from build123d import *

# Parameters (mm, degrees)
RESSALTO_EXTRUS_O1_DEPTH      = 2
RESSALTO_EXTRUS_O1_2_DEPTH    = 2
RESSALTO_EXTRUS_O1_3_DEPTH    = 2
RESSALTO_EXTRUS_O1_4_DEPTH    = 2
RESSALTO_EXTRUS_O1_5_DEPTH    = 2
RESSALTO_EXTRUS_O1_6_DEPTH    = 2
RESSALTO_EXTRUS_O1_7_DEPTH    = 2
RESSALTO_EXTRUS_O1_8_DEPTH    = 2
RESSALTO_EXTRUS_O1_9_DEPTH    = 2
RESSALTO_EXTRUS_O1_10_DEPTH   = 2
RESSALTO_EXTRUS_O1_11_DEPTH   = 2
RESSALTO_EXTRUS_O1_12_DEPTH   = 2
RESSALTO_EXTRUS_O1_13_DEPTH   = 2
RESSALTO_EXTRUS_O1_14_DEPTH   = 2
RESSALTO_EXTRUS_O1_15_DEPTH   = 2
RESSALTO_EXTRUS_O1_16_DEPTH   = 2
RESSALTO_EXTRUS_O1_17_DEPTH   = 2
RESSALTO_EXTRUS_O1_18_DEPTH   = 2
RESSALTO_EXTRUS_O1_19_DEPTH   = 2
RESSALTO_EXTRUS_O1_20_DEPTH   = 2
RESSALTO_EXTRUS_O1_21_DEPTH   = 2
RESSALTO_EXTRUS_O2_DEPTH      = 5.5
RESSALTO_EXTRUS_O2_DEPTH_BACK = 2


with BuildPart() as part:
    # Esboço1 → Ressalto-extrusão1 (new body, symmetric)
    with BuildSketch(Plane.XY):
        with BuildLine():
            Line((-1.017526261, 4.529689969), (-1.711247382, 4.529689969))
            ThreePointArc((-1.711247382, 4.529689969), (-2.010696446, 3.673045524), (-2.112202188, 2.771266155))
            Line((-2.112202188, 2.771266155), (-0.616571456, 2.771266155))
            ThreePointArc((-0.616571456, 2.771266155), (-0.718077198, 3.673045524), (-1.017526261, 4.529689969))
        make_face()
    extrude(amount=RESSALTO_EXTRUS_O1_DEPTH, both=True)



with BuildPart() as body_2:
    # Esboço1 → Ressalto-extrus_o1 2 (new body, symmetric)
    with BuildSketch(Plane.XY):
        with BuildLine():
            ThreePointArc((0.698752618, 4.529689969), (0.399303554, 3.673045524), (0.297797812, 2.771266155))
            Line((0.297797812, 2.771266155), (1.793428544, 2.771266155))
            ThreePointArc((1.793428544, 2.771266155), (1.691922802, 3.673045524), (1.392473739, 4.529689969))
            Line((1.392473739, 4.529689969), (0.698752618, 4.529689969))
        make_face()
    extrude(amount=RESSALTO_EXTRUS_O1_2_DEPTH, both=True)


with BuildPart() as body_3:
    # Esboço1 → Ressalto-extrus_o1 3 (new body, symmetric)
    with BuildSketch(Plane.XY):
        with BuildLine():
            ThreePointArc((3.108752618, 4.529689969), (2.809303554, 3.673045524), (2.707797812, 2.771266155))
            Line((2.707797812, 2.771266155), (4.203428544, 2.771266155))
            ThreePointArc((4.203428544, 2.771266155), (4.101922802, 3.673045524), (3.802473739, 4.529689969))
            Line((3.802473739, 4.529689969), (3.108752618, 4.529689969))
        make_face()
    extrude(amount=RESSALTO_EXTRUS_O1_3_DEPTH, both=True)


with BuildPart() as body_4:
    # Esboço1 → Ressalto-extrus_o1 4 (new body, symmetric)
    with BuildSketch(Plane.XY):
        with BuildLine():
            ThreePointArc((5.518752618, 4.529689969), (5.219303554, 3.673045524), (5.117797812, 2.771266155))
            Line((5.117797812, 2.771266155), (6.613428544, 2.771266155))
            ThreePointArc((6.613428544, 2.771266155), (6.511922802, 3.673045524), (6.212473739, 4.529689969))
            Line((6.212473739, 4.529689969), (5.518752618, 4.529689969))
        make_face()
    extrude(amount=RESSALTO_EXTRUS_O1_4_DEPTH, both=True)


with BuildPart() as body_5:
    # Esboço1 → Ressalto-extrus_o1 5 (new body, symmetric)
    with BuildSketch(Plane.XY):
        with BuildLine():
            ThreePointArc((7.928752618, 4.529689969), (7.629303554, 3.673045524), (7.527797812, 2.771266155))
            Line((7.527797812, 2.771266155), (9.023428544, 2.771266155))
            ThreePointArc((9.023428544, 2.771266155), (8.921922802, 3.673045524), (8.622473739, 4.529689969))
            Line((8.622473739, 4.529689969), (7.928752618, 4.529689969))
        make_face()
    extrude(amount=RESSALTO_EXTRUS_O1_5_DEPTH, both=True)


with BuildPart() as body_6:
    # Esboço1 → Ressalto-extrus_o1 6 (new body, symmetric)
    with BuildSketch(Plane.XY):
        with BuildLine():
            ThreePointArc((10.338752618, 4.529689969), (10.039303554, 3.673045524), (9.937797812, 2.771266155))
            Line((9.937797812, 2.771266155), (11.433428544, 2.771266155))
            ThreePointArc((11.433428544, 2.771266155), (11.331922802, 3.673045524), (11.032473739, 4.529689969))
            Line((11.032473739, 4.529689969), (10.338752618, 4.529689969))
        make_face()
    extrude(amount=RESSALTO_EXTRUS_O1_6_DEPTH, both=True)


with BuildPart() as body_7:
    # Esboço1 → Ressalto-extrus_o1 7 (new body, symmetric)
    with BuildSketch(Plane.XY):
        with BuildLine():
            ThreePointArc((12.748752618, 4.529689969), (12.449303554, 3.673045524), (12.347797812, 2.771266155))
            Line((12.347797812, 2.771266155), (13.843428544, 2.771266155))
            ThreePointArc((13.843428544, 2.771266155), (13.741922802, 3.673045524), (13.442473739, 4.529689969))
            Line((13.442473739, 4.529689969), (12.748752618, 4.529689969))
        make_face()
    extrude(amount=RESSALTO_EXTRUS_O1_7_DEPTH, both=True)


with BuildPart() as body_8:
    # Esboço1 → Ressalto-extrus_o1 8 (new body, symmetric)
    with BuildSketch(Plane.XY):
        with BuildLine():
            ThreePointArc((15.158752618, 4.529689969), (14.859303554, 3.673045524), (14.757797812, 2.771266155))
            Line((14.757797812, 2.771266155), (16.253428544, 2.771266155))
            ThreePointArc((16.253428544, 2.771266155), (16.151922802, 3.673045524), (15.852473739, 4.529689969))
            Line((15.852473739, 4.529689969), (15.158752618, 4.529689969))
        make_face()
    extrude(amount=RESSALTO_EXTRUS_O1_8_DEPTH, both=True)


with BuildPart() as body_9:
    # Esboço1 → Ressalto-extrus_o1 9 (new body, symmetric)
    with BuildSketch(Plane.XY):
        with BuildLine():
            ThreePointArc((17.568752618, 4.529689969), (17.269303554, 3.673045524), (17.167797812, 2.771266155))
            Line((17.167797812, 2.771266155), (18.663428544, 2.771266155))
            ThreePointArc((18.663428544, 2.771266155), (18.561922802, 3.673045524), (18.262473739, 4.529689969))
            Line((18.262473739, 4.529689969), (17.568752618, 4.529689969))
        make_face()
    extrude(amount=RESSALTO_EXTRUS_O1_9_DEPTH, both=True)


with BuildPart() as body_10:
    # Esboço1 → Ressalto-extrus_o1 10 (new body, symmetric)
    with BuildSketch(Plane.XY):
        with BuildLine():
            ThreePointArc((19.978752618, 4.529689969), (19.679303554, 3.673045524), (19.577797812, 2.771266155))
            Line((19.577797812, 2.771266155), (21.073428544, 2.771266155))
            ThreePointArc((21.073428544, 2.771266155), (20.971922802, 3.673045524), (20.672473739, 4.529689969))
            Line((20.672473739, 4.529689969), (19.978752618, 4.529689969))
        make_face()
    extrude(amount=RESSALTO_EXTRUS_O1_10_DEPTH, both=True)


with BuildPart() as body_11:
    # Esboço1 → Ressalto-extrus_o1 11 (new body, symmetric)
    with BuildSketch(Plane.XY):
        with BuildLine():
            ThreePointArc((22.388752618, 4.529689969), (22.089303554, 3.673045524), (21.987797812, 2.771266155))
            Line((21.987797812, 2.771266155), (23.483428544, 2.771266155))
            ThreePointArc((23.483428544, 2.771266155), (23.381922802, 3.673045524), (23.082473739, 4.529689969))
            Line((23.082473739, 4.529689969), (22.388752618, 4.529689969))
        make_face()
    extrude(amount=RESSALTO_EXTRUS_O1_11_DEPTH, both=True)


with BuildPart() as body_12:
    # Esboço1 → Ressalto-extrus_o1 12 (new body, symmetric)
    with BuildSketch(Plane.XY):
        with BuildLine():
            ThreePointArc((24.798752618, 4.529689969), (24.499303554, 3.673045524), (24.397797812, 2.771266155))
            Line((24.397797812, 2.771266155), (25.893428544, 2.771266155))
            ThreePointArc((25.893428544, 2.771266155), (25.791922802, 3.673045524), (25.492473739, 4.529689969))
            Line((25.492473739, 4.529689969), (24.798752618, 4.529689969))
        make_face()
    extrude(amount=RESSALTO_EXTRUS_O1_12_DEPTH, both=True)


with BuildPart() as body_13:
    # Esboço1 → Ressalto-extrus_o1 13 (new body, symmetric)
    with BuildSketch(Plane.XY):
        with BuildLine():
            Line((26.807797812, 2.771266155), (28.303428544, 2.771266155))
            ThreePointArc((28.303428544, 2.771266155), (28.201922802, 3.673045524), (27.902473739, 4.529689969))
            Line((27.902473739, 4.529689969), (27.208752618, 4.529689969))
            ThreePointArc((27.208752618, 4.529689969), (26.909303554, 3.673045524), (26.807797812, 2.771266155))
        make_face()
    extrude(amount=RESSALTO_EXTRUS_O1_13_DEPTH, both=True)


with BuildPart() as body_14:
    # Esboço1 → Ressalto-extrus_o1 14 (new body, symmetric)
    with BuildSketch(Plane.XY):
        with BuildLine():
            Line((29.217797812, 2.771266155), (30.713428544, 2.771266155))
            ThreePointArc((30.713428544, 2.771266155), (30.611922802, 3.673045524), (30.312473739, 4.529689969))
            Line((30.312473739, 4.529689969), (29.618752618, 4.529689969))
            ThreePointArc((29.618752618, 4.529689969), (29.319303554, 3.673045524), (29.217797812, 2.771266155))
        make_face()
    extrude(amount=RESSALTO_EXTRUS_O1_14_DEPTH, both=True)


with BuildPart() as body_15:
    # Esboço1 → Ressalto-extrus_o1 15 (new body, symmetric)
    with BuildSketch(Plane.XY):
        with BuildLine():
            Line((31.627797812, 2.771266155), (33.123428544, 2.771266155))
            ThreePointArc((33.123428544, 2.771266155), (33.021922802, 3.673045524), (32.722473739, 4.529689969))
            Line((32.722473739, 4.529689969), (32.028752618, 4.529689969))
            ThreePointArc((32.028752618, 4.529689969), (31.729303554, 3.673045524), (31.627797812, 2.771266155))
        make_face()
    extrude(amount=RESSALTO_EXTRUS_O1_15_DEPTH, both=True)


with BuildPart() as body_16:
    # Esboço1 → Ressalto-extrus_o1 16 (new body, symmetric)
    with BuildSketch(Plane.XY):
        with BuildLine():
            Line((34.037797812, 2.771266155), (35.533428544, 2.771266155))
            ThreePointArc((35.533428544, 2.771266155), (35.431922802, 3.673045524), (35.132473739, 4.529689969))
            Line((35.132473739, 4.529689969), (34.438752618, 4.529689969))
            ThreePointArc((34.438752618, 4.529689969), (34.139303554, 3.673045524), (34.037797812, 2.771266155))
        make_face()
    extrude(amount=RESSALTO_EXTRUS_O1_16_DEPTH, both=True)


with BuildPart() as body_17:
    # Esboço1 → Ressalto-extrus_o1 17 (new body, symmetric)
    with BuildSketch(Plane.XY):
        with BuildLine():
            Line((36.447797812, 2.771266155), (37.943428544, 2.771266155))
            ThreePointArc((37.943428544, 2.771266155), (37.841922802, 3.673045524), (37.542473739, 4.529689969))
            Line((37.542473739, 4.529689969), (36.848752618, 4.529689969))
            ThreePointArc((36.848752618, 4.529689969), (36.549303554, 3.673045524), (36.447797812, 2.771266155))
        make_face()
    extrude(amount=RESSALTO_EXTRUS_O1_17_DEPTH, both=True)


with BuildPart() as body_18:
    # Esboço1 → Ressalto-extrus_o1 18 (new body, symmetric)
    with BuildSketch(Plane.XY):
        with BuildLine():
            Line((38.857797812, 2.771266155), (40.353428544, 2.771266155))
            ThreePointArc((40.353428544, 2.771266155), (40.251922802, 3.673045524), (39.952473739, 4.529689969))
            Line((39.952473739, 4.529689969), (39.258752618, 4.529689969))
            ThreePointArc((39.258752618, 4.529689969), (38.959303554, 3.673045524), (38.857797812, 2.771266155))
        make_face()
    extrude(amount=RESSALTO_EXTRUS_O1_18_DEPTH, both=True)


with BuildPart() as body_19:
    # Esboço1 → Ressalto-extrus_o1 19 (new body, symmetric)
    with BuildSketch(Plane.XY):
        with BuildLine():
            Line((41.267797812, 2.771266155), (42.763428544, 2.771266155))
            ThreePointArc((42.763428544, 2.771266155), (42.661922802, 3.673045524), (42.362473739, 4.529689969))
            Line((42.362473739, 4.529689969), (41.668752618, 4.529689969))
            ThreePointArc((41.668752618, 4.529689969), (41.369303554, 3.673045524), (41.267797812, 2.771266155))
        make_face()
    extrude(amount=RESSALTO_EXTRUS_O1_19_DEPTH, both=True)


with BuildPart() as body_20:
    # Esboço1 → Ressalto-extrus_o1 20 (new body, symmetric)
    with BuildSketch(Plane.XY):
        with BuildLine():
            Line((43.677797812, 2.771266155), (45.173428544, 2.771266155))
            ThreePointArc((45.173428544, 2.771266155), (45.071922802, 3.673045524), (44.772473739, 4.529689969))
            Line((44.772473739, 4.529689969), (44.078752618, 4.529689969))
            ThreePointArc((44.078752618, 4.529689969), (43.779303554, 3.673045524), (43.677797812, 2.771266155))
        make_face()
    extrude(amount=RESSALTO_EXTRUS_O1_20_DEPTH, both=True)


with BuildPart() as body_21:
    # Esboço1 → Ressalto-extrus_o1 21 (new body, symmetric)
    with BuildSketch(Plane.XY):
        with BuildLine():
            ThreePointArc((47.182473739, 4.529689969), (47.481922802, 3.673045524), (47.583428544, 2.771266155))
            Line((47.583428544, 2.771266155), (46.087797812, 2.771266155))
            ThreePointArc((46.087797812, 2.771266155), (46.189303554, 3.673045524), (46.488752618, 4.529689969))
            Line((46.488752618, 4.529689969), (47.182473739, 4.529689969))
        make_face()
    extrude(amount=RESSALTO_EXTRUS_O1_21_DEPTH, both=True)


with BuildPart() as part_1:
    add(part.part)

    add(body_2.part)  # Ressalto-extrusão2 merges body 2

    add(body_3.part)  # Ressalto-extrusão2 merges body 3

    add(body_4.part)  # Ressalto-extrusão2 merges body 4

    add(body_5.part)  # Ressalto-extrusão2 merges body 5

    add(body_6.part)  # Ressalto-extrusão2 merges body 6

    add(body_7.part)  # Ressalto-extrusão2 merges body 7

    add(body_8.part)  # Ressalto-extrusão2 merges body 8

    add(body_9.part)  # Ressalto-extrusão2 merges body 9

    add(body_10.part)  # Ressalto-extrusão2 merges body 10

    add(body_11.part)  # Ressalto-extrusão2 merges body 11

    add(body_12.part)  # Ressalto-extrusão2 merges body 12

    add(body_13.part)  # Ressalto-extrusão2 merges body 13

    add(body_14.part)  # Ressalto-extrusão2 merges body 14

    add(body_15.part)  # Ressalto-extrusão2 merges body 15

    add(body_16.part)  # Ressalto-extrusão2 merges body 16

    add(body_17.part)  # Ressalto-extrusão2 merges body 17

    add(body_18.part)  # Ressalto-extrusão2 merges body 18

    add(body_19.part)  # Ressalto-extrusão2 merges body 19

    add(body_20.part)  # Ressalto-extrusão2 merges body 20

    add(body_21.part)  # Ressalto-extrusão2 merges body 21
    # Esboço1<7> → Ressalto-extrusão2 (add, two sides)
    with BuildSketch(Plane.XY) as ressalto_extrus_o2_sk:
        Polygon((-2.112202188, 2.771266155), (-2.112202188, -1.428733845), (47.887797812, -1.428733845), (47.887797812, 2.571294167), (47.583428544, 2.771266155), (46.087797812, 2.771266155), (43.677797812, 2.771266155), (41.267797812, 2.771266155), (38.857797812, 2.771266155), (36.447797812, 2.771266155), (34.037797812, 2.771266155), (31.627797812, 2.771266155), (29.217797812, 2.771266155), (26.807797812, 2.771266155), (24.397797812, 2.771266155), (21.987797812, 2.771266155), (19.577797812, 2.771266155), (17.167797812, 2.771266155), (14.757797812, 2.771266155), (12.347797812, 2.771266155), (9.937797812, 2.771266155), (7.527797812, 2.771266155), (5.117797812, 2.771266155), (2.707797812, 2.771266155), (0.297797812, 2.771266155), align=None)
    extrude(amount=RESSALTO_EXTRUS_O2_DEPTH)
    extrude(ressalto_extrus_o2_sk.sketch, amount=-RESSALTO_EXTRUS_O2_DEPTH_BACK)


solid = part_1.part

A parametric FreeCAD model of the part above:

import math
import FreeCAD as App
import Part
import Sketcher
from FreeCAD import Vector


def add_polygon(sketch, points):
    """Adds a closed chain of lines whose ends are joined by coincident constraints."""
    first, n = sketch.GeometryCount, len(points)
    for a, b in zip(points, points[1:] + points[:1]):
        sketch.addGeometry(Part.LineSegment(App.Vector(*a, 0), App.Vector(*b, 0)), False)
    for i in range(n):
        sketch.addConstraint(Sketcher.Constraint("Coincident", first + i, 2, first + (i + 1) % n, 1))

doc = App.newDocument("Part")
body = doc.addObject("PartDesign::Body", "Body")

sketch1 = doc.addObject("Sketcher::SketchObject", "Sketch")
body.addObject(sketch1)
sketch1.AttachmentSupport = (doc.XY_Plane, [""])
sketch1.MapMode = "FlatFace"
sketch1.addGeometry([
    Part.LineSegment(Vector(-1.017526, 4.52969, 0), Vector(-1.711247, 4.52969, 0)),
    Part.ArcOfCircle(Part.Circle(Vector(1.944016, 2.771294, 0), Vector(0, 0, 1), 4.056218), math.radians(154.309722), math.radians(180.000396)),
    Part.LineSegment(Vector(-2.112202, 2.771266, 0), Vector(-0.616571, 2.771266, 0)),
    Part.ArcOfCircle(Part.Circle(Vector(-4.67279, 2.771294, 0), Vector(0, 0, 1), 4.056218), math.radians(-0.000396), math.radians(25.690278)),
], False)
sketch1.addConstraint([
    Sketcher.Constraint("Coincident", 0, 2, 1, 1),
    Sketcher.Constraint("Coincident", 1, 2, 2, 1),
    Sketcher.Constraint("Coincident", 2, 2, 3, 1),
    Sketcher.Constraint("Coincident", 3, 2, 0, 1),
    Sketcher.Constraint("Horizontal", 0),
    Sketcher.Constraint("Horizontal", 2),
    Sketcher.Constraint("Equal", 1, 3),
    Sketcher.Constraint("Horizontal", 1, 3, 3, 3),
    Sketcher.Constraint("Radius", 1, 4.056218),
    Sketcher.Constraint("DistanceX", 0, 2, 0, 1, 0.693721),
    Sketcher.Constraint("DistanceX", 2, 1, 2, 2, 1.495631),
    Sketcher.Constraint("DistanceX", 3, 3, -1, 1, 4.67279),
    Sketcher.Constraint("DistanceY", -1, 1, 0, 2, 4.52969),
    Sketcher.Constraint("DistanceY", -1, 1, 1, 2, 2.771266),
])
pad1 = doc.addObject("PartDesign::Pad", "Pad")
body.addObject(pad1)
pad1.Profile = sketch1
pad1.Length = 4
pad1.Midplane = True
body2 = doc.addObject("PartDesign::Body", "Body001")

sketch2 = doc.addObject("Sketcher::SketchObject", "Sketch001")
body2.addObject(sketch2)
sketch2.AttachmentSupport = (doc.getObject("XY_Plane001"), [""])
sketch2.MapMode = "FlatFace"
sketch2.addGeometry([
    Part.ArcOfCircle(Part.Circle(Vector(4.354016, 2.771294, 0), Vector(0, 0, 1), 4.056218), math.radians(154.309722), math.radians(180.000396)),
    Part.LineSegment(Vector(0.297798, 2.771266, 0), Vector(1.793429, 2.771266, 0)),
    Part.ArcOfCircle(Part.Circle(Vector(-2.26279, 2.771294, 0), Vector(0, 0, 1), 4.056218), math.radians(-0.000396), math.radians(25.690278)),
    Part.LineSegment(Vector(1.392474, 4.52969, 0), Vector(0.698753, 4.52969, 0)),
], False)
sketch2.addConstraint([
    Sketcher.Constraint("Coincident", 0, 2, 1, 1),
    Sketcher.Constraint("Coincident", 1, 2, 2, 1),
    Sketcher.Constraint("Coincident", 2, 2, 3, 1),
    Sketcher.Constraint("Coincident", 3, 2, 0, 1),
    Sketcher.Constraint("Horizontal", 1),
    Sketcher.Constraint("Horizontal", 3),
    Sketcher.Constraint("Equal", 0, 2),
    Sketcher.Constraint("Horizontal", 0, 3, 2, 3),
    Sketcher.Constraint("Radius", 0, 4.056218),
    Sketcher.Constraint("DistanceX", 1, 1, 1, 2, 1.495631),
    Sketcher.Constraint("DistanceX", 3, 2, 3, 1, 0.693721),
    Sketcher.Constraint("DistanceX", 2, 3, -1, 1, 2.26279),
    Sketcher.Constraint("DistanceY", -1, 1, 2, 2, 4.52969),
    Sketcher.Constraint("DistanceY", -1, 1, 0, 2, 2.771266),
])
pad2 = doc.addObject("PartDesign::Pad", "Pad001")
body2.addObject(pad2)
pad2.Profile = sketch2
pad2.Length = 4
pad2.Midplane = True
body3 = doc.addObject("PartDesign::Body", "Body002")

sketch3 = doc.addObject("Sketcher::SketchObject", "Sketch002")
body3.addObject(sketch3)
sketch3.AttachmentSupport = (doc.getObject("XY_Plane002"), [""])
sketch3.MapMode = "FlatFace"
sketch3.addGeometry([
    Part.ArcOfCircle(Part.Circle(Vector(6.764016, 2.771294, 0), Vector(0, 0, 1), 4.056218), math.radians(154.309722), math.radians(180.000396)),
    Part.LineSegment(Vector(2.707798, 2.771266, 0), Vector(4.203429, 2.771266, 0)),
    Part.ArcOfCircle(Part.Circle(Vector(0.14721, 2.771294, 0), Vector(0, 0, 1), 4.056218), math.radians(-0.000396), math.radians(25.690278)),
    Part.LineSegment(Vector(3.802474, 4.52969, 0), Vector(3.108753, 4.52969, 0)),
], False)
sketch3.addConstraint([
    Sketcher.Constraint("Coincident", 0, 2, 1, 1),
    Sketcher.Constraint("Coincident", 1, 2, 2, 1),
    Sketcher.Constraint("Coincident", 2, 2, 3, 1),
    Sketcher.Constraint("Coincident", 3, 2, 0, 1),
    Sketcher.Constraint("Horizontal", 1),
    Sketcher.Constraint("Horizontal", 3),
    Sketcher.Constraint("Equal", 0, 2),
    Sketcher.Constraint("Horizontal", 0, 3, 2, 3),
    Sketcher.Constraint("Radius", 0, 4.056218),
    Sketcher.Constraint("DistanceX", 1, 1, 1, 2, 1.495631),
    Sketcher.Constraint("DistanceX", 3, 2, 3, 1, 0.693721),
    Sketcher.Constraint("DistanceX", -1, 1, 2, 3, 0.14721),
    Sketcher.Constraint("DistanceY", -1, 1, 2, 2, 4.52969),
    Sketcher.Constraint("DistanceY", -1, 1, 0, 2, 2.771266),
])
pad3 = doc.addObject("PartDesign::Pad", "Pad002")
body3.addObject(pad3)
pad3.Profile = sketch3
pad3.Length = 4
pad3.Midplane = True
body4 = doc.addObject("PartDesign::Body", "Body003")

sketch4 = doc.addObject("Sketcher::SketchObject", "Sketch003")
body4.addObject(sketch4)
sketch4.AttachmentSupport = (doc.getObject("XY_Plane003"), [""])
sketch4.MapMode = "FlatFace"
sketch4.addGeometry([
    Part.ArcOfCircle(Part.Circle(Vector(9.174016, 2.771294, 0), Vector(0, 0, 1), 4.056218), math.radians(154.309722), math.radians(180.000396)),
    Part.LineSegment(Vector(5.117798, 2.771266, 0), Vector(6.613429, 2.771266, 0)),
    Part.ArcOfCircle(Part.Circle(Vector(2.55721, 2.771294, 0), Vector(0, 0, 1), 4.056218), math.radians(-0.000396), math.radians(25.690278)),
    Part.LineSegment(Vector(6.212474, 4.52969, 0), Vector(5.518753, 4.52969, 0)),
], False)
sketch4.addConstraint([
    Sketcher.Constraint("Coincident", 0, 2, 1, 1),
    Sketcher.Constraint("Coincident", 1, 2, 2, 1),
    Sketcher.Constraint("Coincident", 2, 2, 3, 1),
    Sketcher.Constraint("Coincident", 3, 2, 0, 1),
    Sketcher.Constraint("Horizontal", 1),
    Sketcher.Constraint("Horizontal", 3),
    Sketcher.Constraint("Equal", 0, 2),
    Sketcher.Constraint("Horizontal", 0, 3, 2, 3),
    Sketcher.Constraint("Radius", 0, 4.056218),
    Sketcher.Constraint("DistanceX", 1, 1, 1, 2, 1.495631),
    Sketcher.Constraint("DistanceX", 3, 2, 3, 1, 0.693721),
    Sketcher.Constraint("DistanceX", -1, 1, 2, 3, 2.55721),
    Sketcher.Constraint("DistanceY", -1, 1, 2, 2, 4.52969),
    Sketcher.Constraint("DistanceY", -1, 1, 0, 2, 2.771266),
])
pad4 = doc.addObject("PartDesign::Pad", "Pad003")
body4.addObject(pad4)
pad4.Profile = sketch4
pad4.Length = 4
pad4.Midplane = True
body5 = doc.addObject("PartDesign::Body", "Body004")

sketch5 = doc.addObject("Sketcher::SketchObject", "Sketch004")
body5.addObject(sketch5)
sketch5.AttachmentSupport = (doc.getObject("XY_Plane004"), [""])
sketch5.MapMode = "FlatFace"
sketch5.addGeometry([
    Part.ArcOfCircle(Part.Circle(Vector(11.584016, 2.771294, 0), Vector(0, 0, 1), 4.056218), math.radians(154.309722), math.radians(180.000396)),
    Part.LineSegment(Vector(7.527798, 2.771266, 0), Vector(9.023429, 2.771266, 0)),
    Part.ArcOfCircle(Part.Circle(Vector(4.96721, 2.771294, 0), Vector(0, 0, 1), 4.056218), math.radians(-0.000396), math.radians(25.690278)),
    Part.LineSegment(Vector(8.622474, 4.52969, 0), Vector(7.928753, 4.52969, 0)),
], False)
sketch5.addConstraint([
    Sketcher.Constraint("Coincident", 0, 2, 1, 1),
    Sketcher.Constraint("Coincident", 1, 2, 2, 1),
    Sketcher.Constraint("Coincident", 2, 2, 3, 1),
    Sketcher.Constraint("Coincident", 3, 2, 0, 1),
    Sketcher.Constraint("Horizontal", 1),
    Sketcher.Constraint("Horizontal", 3),
    Sketcher.Constraint("Equal", 0, 2),
    Sketcher.Constraint("Horizontal", 0, 3, 2, 3),
    Sketcher.Constraint("Radius", 0, 4.056218),
    Sketcher.Constraint("DistanceX", 1, 1, 1, 2, 1.495631),
    Sketcher.Constraint("DistanceX", 3, 2, 3, 1, 0.693721),
    Sketcher.Constraint("DistanceX", -1, 1, 2, 3, 4.96721),
    Sketcher.Constraint("DistanceY", -1, 1, 2, 2, 4.52969),
    Sketcher.Constraint("DistanceY", -1, 1, 0, 2, 2.771266),
])
pad5 = doc.addObject("PartDesign::Pad", "Pad004")
body5.addObject(pad5)
pad5.Profile = sketch5
pad5.Length = 4
pad5.Midplane = True
body6 = doc.addObject("PartDesign::Body", "Body005")

sketch6 = doc.addObject("Sketcher::SketchObject", "Sketch005")
body6.addObject(sketch6)
sketch6.AttachmentSupport = (doc.getObject("XY_Plane005"), [""])
sketch6.MapMode = "FlatFace"
sketch6.addGeometry([
    Part.ArcOfCircle(Part.Circle(Vector(13.994016, 2.771294, 0), Vector(0, 0, 1), 4.056218), math.radians(154.309722), math.radians(180.000396)),
    Part.LineSegment(Vector(9.937798, 2.771266, 0), Vector(11.433429, 2.771266, 0)),
    Part.ArcOfCircle(Part.Circle(Vector(7.37721, 2.771294, 0), Vector(0, 0, 1), 4.056218), math.radians(-0.000396), math.radians(25.690278)),
    Part.LineSegment(Vector(11.032474, 4.52969, 0), Vector(10.338753, 4.52969, 0)),
], False)
sketch6.addConstraint([
    Sketcher.Constraint("Coincident", 0, 2, 1, 1),
    Sketcher.Constraint("Coincident", 1, 2, 2, 1),
    Sketcher.Constraint("Coincident", 2, 2, 3, 1),
    Sketcher.Constraint("Coincident", 3, 2, 0, 1),
    Sketcher.Constraint("Horizontal", 1),
    Sketcher.Constraint("Horizontal", 3),
    Sketcher.Constraint("Equal", 0, 2),
    Sketcher.Constraint("Horizontal", 0, 3, 2, 3),
    Sketcher.Constraint("Radius", 0, 4.056218),
    Sketcher.Constraint("DistanceX", 1, 1, 1, 2, 1.495631),
    Sketcher.Constraint("DistanceX", 3, 2, 3, 1, 0.693721),
    Sketcher.Constraint("DistanceX", -1, 1, 2, 3, 7.37721),
    Sketcher.Constraint("DistanceY", -1, 1, 2, 2, 4.52969),
    Sketcher.Constraint("DistanceY", -1, 1, 0, 2, 2.771266),
])
pad6 = doc.addObject("PartDesign::Pad", "Pad005")
body6.addObject(pad6)
pad6.Profile = sketch6
pad6.Length = 4
pad6.Midplane = True
body7 = doc.addObject("PartDesign::Body", "Body006")

sketch7 = doc.addObject("Sketcher::SketchObject", "Sketch006")
body7.addObject(sketch7)
sketch7.AttachmentSupport = (doc.getObject("XY_Plane006"), [""])
sketch7.MapMode = "FlatFace"
sketch7.addGeometry([
    Part.ArcOfCircle(Part.Circle(Vector(16.404016, 2.771294, 0), Vector(0, 0, 1), 4.056218), math.radians(154.309722), math.radians(180.000396)),
    Part.LineSegment(Vector(12.347798, 2.771266, 0), Vector(13.843429, 2.771266, 0)),
    Part.ArcOfCircle(Part.Circle(Vector(9.78721, 2.771294, 0), Vector(0, 0, 1), 4.056218), math.radians(-0.000396), math.radians(25.690278)),
    Part.LineSegment(Vector(13.442474, 4.52969, 0), Vector(12.748753, 4.52969, 0)),
], False)
sketch7.addConstraint([
    Sketcher.Constraint("Coincident", 0, 2, 1, 1),
    Sketcher.Constraint("Coincident", 1, 2, 2, 1),
    Sketcher.Constraint("Coincident", 2, 2, 3, 1),
    Sketcher.Constraint("Coincident", 3, 2, 0, 1),
    Sketcher.Constraint("Horizontal", 1),
    Sketcher.Constraint("Horizontal", 3),
    Sketcher.Constraint("Equal", 0, 2),
    Sketcher.Constraint("Horizontal", 0, 3, 2, 3),
    Sketcher.Constraint("Radius", 0, 4.056218),
    Sketcher.Constraint("DistanceX", 1, 1, 1, 2, 1.495631),
    Sketcher.Constraint("DistanceX", 3, 2, 3, 1, 0.693721),
    Sketcher.Constraint("DistanceX", -1, 1, 2, 3, 9.78721),
    Sketcher.Constraint("DistanceY", -1, 1, 2, 2, 4.52969),
    Sketcher.Constraint("DistanceY", -1, 1, 0, 2, 2.771266),
])
pad7 = doc.addObject("PartDesign::Pad", "Pad006")
body7.addObject(pad7)
pad7.Profile = sketch7
pad7.Length = 4
pad7.Midplane = True
body8 = doc.addObject("PartDesign::Body", "Body007")

sketch8 = doc.addObject("Sketcher::SketchObject", "Sketch007")
body8.addObject(sketch8)
sketch8.AttachmentSupport = (doc.getObject("XY_Plane007"), [""])
sketch8.MapMode = "FlatFace"
sketch8.addGeometry([
    Part.ArcOfCircle(Part.Circle(Vector(18.814016, 2.771294, 0), Vector(0, 0, 1), 4.056218), math.radians(154.309722), math.radians(180.000396)),
    Part.LineSegment(Vector(14.757798, 2.771266, 0), Vector(16.253429, 2.771266, 0)),
    Part.ArcOfCircle(Part.Circle(Vector(12.19721, 2.771294, 0), Vector(0, 0, 1), 4.056218), math.radians(-0.000396), math.radians(25.690278)),
    Part.LineSegment(Vector(15.852474, 4.52969, 0), Vector(15.158753, 4.52969, 0)),
], False)
sketch8.addConstraint([
    Sketcher.Constraint("Coincident", 0, 2, 1, 1),
    Sketcher.Constraint("Coincident", 1, 2, 2, 1),
    Sketcher.Constraint("Coincident", 2, 2, 3, 1),
    Sketcher.Constraint("Coincident", 3, 2, 0, 1),
    Sketcher.Constraint("Horizontal", 1),
    Sketcher.Constraint("Horizontal", 3),
    Sketcher.Constraint("Equal", 0, 2),
    Sketcher.Constraint("Horizontal", 0, 3, 2, 3),
    Sketcher.Constraint("Radius", 0, 4.056218),
    Sketcher.Constraint("DistanceX", 1, 1, 1, 2, 1.495631),
    Sketcher.Constraint("DistanceX", 3, 2, 3, 1, 0.693721),
    Sketcher.Constraint("DistanceX", -1, 1, 2, 3, 12.19721),
    Sketcher.Constraint("DistanceY", -1, 1, 2, 2, 4.52969),
    Sketcher.Constraint("DistanceY", -1, 1, 0, 2, 2.771266),
])
pad8 = doc.addObject("PartDesign::Pad", "Pad007")
body8.addObject(pad8)
pad8.Profile = sketch8
pad8.Length = 4
pad8.Midplane = True
body9 = doc.addObject("PartDesign::Body", "Body008")

sketch9 = doc.addObject("Sketcher::SketchObject", "Sketch008")
body9.addObject(sketch9)
sketch9.AttachmentSupport = (doc.getObject("XY_Plane008"), [""])
sketch9.MapMode = "FlatFace"
sketch9.addGeometry([
    Part.ArcOfCircle(Part.Circle(Vector(21.224016, 2.771294, 0), Vector(0, 0, 1), 4.056218), math.radians(154.309722), math.radians(180.000396)),
    Part.LineSegment(Vector(17.167798, 2.771266, 0), Vector(18.663429, 2.771266, 0)),
    Part.ArcOfCircle(Part.Circle(Vector(14.60721, 2.771294, 0), Vector(0, 0, 1), 4.056218), math.radians(-0.000396), math.radians(25.690278)),
    Part.LineSegment(Vector(18.262474, 4.52969, 0), Vector(17.568753, 4.52969, 0)),
], False)
sketch9.addConstraint([
    Sketcher.Constraint("Coincident", 0, 2, 1, 1),
    Sketcher.Constraint("Coincident", 1, 2, 2, 1),
    Sketcher.Constraint("Coincident", 2, 2, 3, 1),
    Sketcher.Constraint("Coincident", 3, 2, 0, 1),
    Sketcher.Constraint("Horizontal", 1),
    Sketcher.Constraint("Horizontal", 3),
    Sketcher.Constraint("Equal", 0, 2),
    Sketcher.Constraint("Horizontal", 0, 3, 2, 3),
    Sketcher.Constraint("Radius", 0, 4.056218),
    Sketcher.Constraint("DistanceX", 1, 1, 1, 2, 1.495631),
    Sketcher.Constraint("DistanceX", 3, 2, 3, 1, 0.693721),
    Sketcher.Constraint("DistanceX", -1, 1, 2, 3, 14.60721),
    Sketcher.Constraint("DistanceY", -1, 1, 2, 2, 4.52969),
    Sketcher.Constraint("DistanceY", -1, 1, 0, 2, 2.771266),
])
pad9 = doc.addObject("PartDesign::Pad", "Pad008")
body9.addObject(pad9)
pad9.Profile = sketch9
pad9.Length = 4
pad9.Midplane = True
body10 = doc.addObject("PartDesign::Body", "Body009")

sketch10 = doc.addObject("Sketcher::SketchObject", "Sketch009")
body10.addObject(sketch10)
sketch10.AttachmentSupport = (doc.getObject("XY_Plane009"), [""])
sketch10.MapMode = "FlatFace"
sketch10.addGeometry([
    Part.ArcOfCircle(Part.Circle(Vector(23.634016, 2.771294, 0), Vector(0, 0, 1), 4.056218), math.radians(154.309722), math.radians(180.000396)),
    Part.LineSegment(Vector(19.577798, 2.771266, 0), Vector(21.073429, 2.771266, 0)),
    Part.ArcOfCircle(Part.Circle(Vector(17.01721, 2.771294, 0), Vector(0, 0, 1), 4.056218), math.radians(-0.000396), math.radians(25.690278)),
    Part.LineSegment(Vector(20.672474, 4.52969, 0), Vector(19.978753, 4.52969, 0)),
], False)
sketch10.addConstraint([
    Sketcher.Constraint("Coincident", 0, 2, 1, 1),
    Sketcher.Constraint("Coincident", 1, 2, 2, 1),
    Sketcher.Constraint("Coincident", 2, 2, 3, 1),
    Sketcher.Constraint("Coincident", 3, 2, 0, 1),
    Sketcher.Constraint("Horizontal", 1),
    Sketcher.Constraint("Horizontal", 3),
    Sketcher.Constraint("Equal", 0, 2),
    Sketcher.Constraint("Horizontal", 0, 3, 2, 3),
    Sketcher.Constraint("Radius", 0, 4.056218),
    Sketcher.Constraint("DistanceX", 1, 1, 1, 2, 1.495631),
    Sketcher.Constraint("DistanceX", 3, 2, 3, 1, 0.693721),
    Sketcher.Constraint("DistanceX", -1, 1, 2, 3, 17.01721),
    Sketcher.Constraint("DistanceY", -1, 1, 2, 2, 4.52969),
    Sketcher.Constraint("DistanceY", -1, 1, 0, 2, 2.771266),
])
pad10 = doc.addObject("PartDesign::Pad", "Pad009")
body10.addObject(pad10)
pad10.Profile = sketch10
pad10.Length = 4
pad10.Midplane = True
body11 = doc.addObject("PartDesign::Body", "Body010")

sketch11 = doc.addObject("Sketcher::SketchObject", "Sketch010")
body11.addObject(sketch11)
sketch11.AttachmentSupport = (doc.getObject("XY_Plane010"), [""])
sketch11.MapMode = "FlatFace"
sketch11.addGeometry([
    Part.ArcOfCircle(Part.Circle(Vector(26.044016, 2.771294, 0), Vector(0, 0, 1), 4.056218), math.radians(154.309722), math.radians(180.000396)),
    Part.LineSegment(Vector(21.987798, 2.771266, 0), Vector(23.483429, 2.771266, 0)),
    Part.ArcOfCircle(Part.Circle(Vector(19.42721, 2.771294, 0), Vector(0, 0, 1), 4.056218), math.radians(-0.000396), math.radians(25.690278)),
    Part.LineSegment(Vector(23.082474, 4.52969, 0), Vector(22.388753, 4.52969, 0)),
], False)
sketch11.addConstraint([
    Sketcher.Constraint("Coincident", 0, 2, 1, 1),
    Sketcher.Constraint("Coincident", 1, 2, 2, 1),
    Sketcher.Constraint("Coincident", 2, 2, 3, 1),
    Sketcher.Constraint("Coincident", 3, 2, 0, 1),
    Sketcher.Constraint("Horizontal", 1),
    Sketcher.Constraint("Horizontal", 3),
    Sketcher.Constraint("Equal", 0, 2),
    Sketcher.Constraint("Horizontal", 0, 3, 2, 3),
    Sketcher.Constraint("Radius", 0, 4.056218),
    Sketcher.Constraint("DistanceX", 1, 1, 1, 2, 1.495631),
    Sketcher.Constraint("DistanceX", 3, 2, 3, 1, 0.693721),
    Sketcher.Constraint("DistanceX", -1, 1, 2, 3, 19.42721),
    Sketcher.Constraint("DistanceY", -1, 1, 2, 2, 4.52969),
    Sketcher.Constraint("DistanceY", -1, 1, 0, 2, 2.771266),
])
pad11 = doc.addObject("PartDesign::Pad", "Pad010")
body11.addObject(pad11)
pad11.Profile = sketch11
pad11.Length = 4
pad11.Midplane = True
body12 = doc.addObject("PartDesign::Body", "Body011")

sketch12 = doc.addObject("Sketcher::SketchObject", "Sketch011")
body12.addObject(sketch12)
sketch12.AttachmentSupport = (doc.getObject("XY_Plane011"), [""])
sketch12.MapMode = "FlatFace"
sketch12.addGeometry([
    Part.ArcOfCircle(Part.Circle(Vector(28.454016, 2.771294, 0), Vector(0, 0, 1), 4.056218), math.radians(154.309722), math.radians(180.000396)),
    Part.LineSegment(Vector(24.397798, 2.771266, 0), Vector(25.893429, 2.771266, 0)),
    Part.ArcOfCircle(Part.Circle(Vector(21.83721, 2.771294, 0), Vector(0, 0, 1), 4.056218), math.radians(-0.000396), math.radians(25.690278)),
    Part.LineSegment(Vector(25.492474, 4.52969, 0), Vector(24.798753, 4.52969, 0)),
], False)
sketch12.addConstraint([
    Sketcher.Constraint("Coincident", 0, 2, 1, 1),
    Sketcher.Constraint("Coincident", 1, 2, 2, 1),
    Sketcher.Constraint("Coincident", 2, 2, 3, 1),
    Sketcher.Constraint("Coincident", 3, 2, 0, 1),
    Sketcher.Constraint("Horizontal", 1),
    Sketcher.Constraint("Horizontal", 3),
    Sketcher.Constraint("Equal", 0, 2),
    Sketcher.Constraint("Horizontal", 0, 3, 2, 3),
    Sketcher.Constraint("Radius", 0, 4.056218),
    Sketcher.Constraint("DistanceX", 1, 1, 1, 2, 1.495631),
    Sketcher.Constraint("DistanceX", 3, 2, 3, 1, 0.693721),
    Sketcher.Constraint("DistanceX", -1, 1, 2, 3, 21.83721),
    Sketcher.Constraint("DistanceY", -1, 1, 2, 2, 4.52969),
    Sketcher.Constraint("DistanceY", -1, 1, 0, 2, 2.771266),
])
pad12 = doc.addObject("PartDesign::Pad", "Pad011")
body12.addObject(pad12)
pad12.Profile = sketch12
pad12.Length = 4
pad12.Midplane = True
body13 = doc.addObject("PartDesign::Body", "Body012")

sketch13 = doc.addObject("Sketcher::SketchObject", "Sketch012")
body13.addObject(sketch13)
sketch13.AttachmentSupport = (doc.getObject("XY_Plane012"), [""])
sketch13.MapMode = "FlatFace"
sketch13.addGeometry([
    Part.LineSegment(Vector(26.807798, 2.771266, 0), Vector(28.303429, 2.771266, 0)),
    Part.ArcOfCircle(Part.Circle(Vector(24.24721, 2.771294, 0), Vector(0, 0, 1), 4.056218), math.radians(-0.000396), math.radians(25.690278)),
    Part.LineSegment(Vector(27.902474, 4.52969, 0), Vector(27.208753, 4.52969, 0)),
    Part.ArcOfCircle(Part.Circle(Vector(30.864016, 2.771294, 0), Vector(0, 0, 1), 4.056218), math.radians(154.309722), math.radians(180.000396)),
], False)
sketch13.addConstraint([
    Sketcher.Constraint("Coincident", 0, 2, 1, 1),
    Sketcher.Constraint("Coincident", 1, 2, 2, 1),
    Sketcher.Constraint("Coincident", 2, 2, 3, 1),
    Sketcher.Constraint("Coincident", 3, 2, 0, 1),
    Sketcher.Constraint("Horizontal", 0),
    Sketcher.Constraint("Horizontal", 2),
    Sketcher.Constraint("Equal", 1, 3),
    Sketcher.Constraint("Horizontal", 1, 3, 3, 3),
    Sketcher.Constraint("Radius", 1, 4.056218),
    Sketcher.Constraint("DistanceX", 0, 1, 0, 2, 1.495631),
    Sketcher.Constraint("DistanceX", 2, 2, 2, 1, 0.693721),
    Sketcher.Constraint("DistanceX", -1, 1, 1, 3, 24.24721),
    Sketcher.Constraint("DistanceY", -1, 1, 1, 2, 4.52969),
    Sketcher.Constraint("DistanceY", -1, 1, 0, 2, 2.771266),
])
pad13 = doc.addObject("PartDesign::Pad", "Pad012")
body13.addObject(pad13)
pad13.Profile = sketch13
pad13.Length = 4
pad13.Midplane = True
body14 = doc.addObject("PartDesign::Body", "Body013")

sketch14 = doc.addObject("Sketcher::SketchObject", "Sketch013")
body14.addObject(sketch14)
sketch14.AttachmentSupport = (doc.getObject("XY_Plane013"), [""])
sketch14.MapMode = "FlatFace"
sketch14.addGeometry([
    Part.LineSegment(Vector(29.217798, 2.771266, 0), Vector(30.713429, 2.771266, 0)),
    Part.ArcOfCircle(Part.Circle(Vector(26.65721, 2.771294, 0), Vector(0, 0, 1), 4.056218), math.radians(-0.000396), math.radians(25.690278)),
    Part.LineSegment(Vector(30.312474, 4.52969, 0), Vector(29.618753, 4.52969, 0)),
    Part.ArcOfCircle(Part.Circle(Vector(33.274016, 2.771294, 0), Vector(0, 0, 1), 4.056218), math.radians(154.309722), math.radians(180.000396)),
], False)
sketch14.addConstraint([
    Sketcher.Constraint("Coincident", 0, 2, 1, 1),
    Sketcher.Constraint("Coincident", 1, 2, 2, 1),
    Sketcher.Constraint("Coincident", 2, 2, 3, 1),
    Sketcher.Constraint("Coincident", 3, 2, 0, 1),
    Sketcher.Constraint("Horizontal", 0),
    Sketcher.Constraint("Horizontal", 2),
    Sketcher.Constraint("Equal", 1, 3),
    Sketcher.Constraint("Horizontal", 1, 3, 3, 3),
    Sketcher.Constraint("Radius", 1, 4.056218),
    Sketcher.Constraint("DistanceX", 0, 1, 0, 2, 1.495631),
    Sketcher.Constraint("DistanceX", 2, 2, 2, 1, 0.693721),
    Sketcher.Constraint("DistanceX", -1, 1, 1, 3, 26.65721),
    Sketcher.Constraint("DistanceY", -1, 1, 1, 2, 4.52969),
    Sketcher.Constraint("DistanceY", -1, 1, 0, 2, 2.771266),
])
pad14 = doc.addObject("PartDesign::Pad", "Pad013")
body14.addObject(pad14)
pad14.Profile = sketch14
pad14.Length = 4
pad14.Midplane = True
body15 = doc.addObject("PartDesign::Body", "Body014")

sketch15 = doc.addObject("Sketcher::SketchObject", "Sketch014")
body15.addObject(sketch15)
sketch15.AttachmentSupport = (doc.getObject("XY_Plane014"), [""])
sketch15.MapMode = "FlatFace"
sketch15.addGeometry([
    Part.LineSegment(Vector(31.627798, 2.771266, 0), Vector(33.123429, 2.771266, 0)),
    Part.ArcOfCircle(Part.Circle(Vector(29.06721, 2.771294, 0), Vector(0, 0, 1), 4.056218), math.radians(-0.000396), math.radians(25.690278)),
    Part.LineSegment(Vector(32.722474, 4.52969, 0), Vector(32.028753, 4.52969, 0)),
    Part.ArcOfCircle(Part.Circle(Vector(35.684016, 2.771294, 0), Vector(0, 0, 1), 4.056218), math.radians(154.309722), math.radians(180.000396)),
], False)
sketch15.addConstraint([
    Sketcher.Constraint("Coincident", 0, 2, 1, 1),
    Sketcher.Constraint("Coincident", 1, 2, 2, 1),
    Sketcher.Constraint("Coincident", 2, 2, 3, 1),
    Sketcher.Constraint("Coincident", 3, 2, 0, 1),
    Sketcher.Constraint("Horizontal", 0),
    Sketcher.Constraint("Horizontal", 2),
    Sketcher.Constraint("Equal", 1, 3),
    Sketcher.Constraint("Horizontal", 1, 3, 3, 3),
    Sketcher.Constraint("Radius", 1, 4.056218),
    Sketcher.Constraint("DistanceX", 0, 1, 0, 2, 1.495631),
    Sketcher.Constraint("DistanceX", 2, 2, 2, 1, 0.693721),
    Sketcher.Constraint("DistanceX", -1, 1, 1, 3, 29.06721),
    Sketcher.Constraint("DistanceY", -1, 1, 1, 2, 4.52969),
    Sketcher.Constraint("DistanceY", -1, 1, 0, 2, 2.771266),
])
pad15 = doc.addObject("PartDesign::Pad", "Pad014")
body15.addObject(pad15)
pad15.Profile = sketch15
pad15.Length = 4
pad15.Midplane = True
body16 = doc.addObject("PartDesign::Body", "Body015")

sketch16 = doc.addObject("Sketcher::SketchObject", "Sketch015")
body16.addObject(sketch16)
sketch16.AttachmentSupport = (doc.getObject("XY_Plane015"), [""])
sketch16.MapMode = "FlatFace"
sketch16.addGeometry([
    Part.LineSegment(Vector(34.037798, 2.771266, 0), Vector(35.533429, 2.771266, 0)),
    Part.ArcOfCircle(Part.Circle(Vector(31.47721, 2.771294, 0), Vector(0, 0, 1), 4.056218), math.radians(-0.000396), math.radians(25.690278)),
    Part.LineSegment(Vector(35.132474, 4.52969, 0), Vector(34.438753, 4.52969, 0)),
    Part.ArcOfCircle(Part.Circle(Vector(38.094016, 2.771294, 0), Vector(0, 0, 1), 4.056218), math.radians(154.309722), math.radians(180.000396)),
], False)
sketch16.addConstraint([
    Sketcher.Constraint("Coincident", 0, 2, 1, 1),
    Sketcher.Constraint("Coincident", 1, 2, 2, 1),
    Sketcher.Constraint("Coincident", 2, 2, 3, 1),
    Sketcher.Constraint("Coincident", 3, 2, 0, 1),
    Sketcher.Constraint("Horizontal", 0),
    Sketcher.Constraint("Horizontal", 2),
    Sketcher.Constraint("Equal", 1, 3),
    Sketcher.Constraint("Horizontal", 1, 3, 3, 3),
    Sketcher.Constraint("Radius", 1, 4.056218),
    Sketcher.Constraint("DistanceX", 0, 1, 0, 2, 1.495631),
    Sketcher.Constraint("DistanceX", 2, 2, 2, 1, 0.693721),
    Sketcher.Constraint("DistanceX", -1, 1, 1, 3, 31.47721),
    Sketcher.Constraint("DistanceY", -1, 1, 1, 2, 4.52969),
    Sketcher.Constraint("DistanceY", -1, 1, 0, 2, 2.771266),
])
pad16 = doc.addObject("PartDesign::Pad", "Pad015")
body16.addObject(pad16)
pad16.Profile = sketch16
pad16.Length = 4
pad16.Midplane = True
body17 = doc.addObject("PartDesign::Body", "Body016")

sketch17 = doc.addObject("Sketcher::SketchObject", "Sketch016")
body17.addObject(sketch17)
sketch17.AttachmentSupport = (doc.getObject("XY_Plane016"), [""])
sketch17.MapMode = "FlatFace"
sketch17.addGeometry([
    Part.LineSegment(Vector(36.447798, 2.771266, 0), Vector(37.943429, 2.771266, 0)),
    Part.ArcOfCircle(Part.Circle(Vector(33.88721, 2.771294, 0), Vector(0, 0, 1), 4.056218), math.radians(-0.000396), math.radians(25.690278)),
    Part.LineSegment(Vector(37.542474, 4.52969, 0), Vector(36.848753, 4.52969, 0)),
    Part.ArcOfCircle(Part.Circle(Vector(40.504016, 2.771294, 0), Vector(0, 0, 1), 4.056218), math.radians(154.309722), math.radians(180.000396)),
], False)
sketch17.addConstraint([
    Sketcher.Constraint("Coincident", 0, 2, 1, 1),
    Sketcher.Constraint("Coincident", 1, 2, 2, 1),
    Sketcher.Constraint("Coincident", 2, 2, 3, 1),
    Sketcher.Constraint("Coincident", 3, 2, 0, 1),
    Sketcher.Constraint("Horizontal", 0),
    Sketcher.Constraint("Horizontal", 2),
    Sketcher.Constraint("Equal", 1, 3),
    Sketcher.Constraint("Horizontal", 1, 3, 3, 3),
    Sketcher.Constraint("Radius", 1, 4.056218),
    Sketcher.Constraint("DistanceX", 0, 1, 0, 2, 1.495631),
    Sketcher.Constraint("DistanceX", 2, 2, 2, 1, 0.693721),
    Sketcher.Constraint("DistanceX", -1, 1, 1, 3, 33.88721),
    Sketcher.Constraint("DistanceY", -1, 1, 1, 2, 4.52969),
    Sketcher.Constraint("DistanceY", -1, 1, 0, 2, 2.771266),
])
pad17 = doc.addObject("PartDesign::Pad", "Pad016")
body17.addObject(pad17)
pad17.Profile = sketch17
pad17.Length = 4
pad17.Midplane = True
body18 = doc.addObject("PartDesign::Body", "Body017")

sketch18 = doc.addObject("Sketcher::SketchObject", "Sketch017")
body18.addObject(sketch18)
sketch18.AttachmentSupport = (doc.getObject("XY_Plane017"), [""])
sketch18.MapMode = "FlatFace"
sketch18.addGeometry([
    Part.LineSegment(Vector(38.857798, 2.771266, 0), Vector(40.353429, 2.771266, 0)),
    Part.ArcOfCircle(Part.Circle(Vector(36.29721, 2.771294, 0), Vector(0, 0, 1), 4.056218), math.radians(-0.000396), math.radians(25.690278)),
    Part.LineSegment(Vector(39.952474, 4.52969, 0), Vector(39.258753, 4.52969, 0)),
    Part.ArcOfCircle(Part.Circle(Vector(42.914016, 2.771294, 0), Vector(0, 0, 1), 4.056218), math.radians(154.309722), math.radians(180.000396)),
], False)
sketch18.addConstraint([
    Sketcher.Constraint("Coincident", 0, 2, 1, 1),
    Sketcher.Constraint("Coincident", 1, 2, 2, 1),
    Sketcher.Constraint("Coincident", 2, 2, 3, 1),
    Sketcher.Constraint("Coincident", 3, 2, 0, 1),
    Sketcher.Constraint("Horizontal", 0),
    Sketcher.Constraint("Horizontal", 2),
    Sketcher.Constraint("Equal", 1, 3),
    Sketcher.Constraint("Horizontal", 1, 3, 3, 3),
    Sketcher.Constraint("Radius", 1, 4.056218),
    Sketcher.Constraint("DistanceX", 0, 1, 0, 2, 1.495631),
    Sketcher.Constraint("DistanceX", 2, 2, 2, 1, 0.693721),
    Sketcher.Constraint("DistanceX", -1, 1, 1, 3, 36.29721),
    Sketcher.Constraint("DistanceY", -1, 1, 1, 2, 4.52969),
    Sketcher.Constraint("DistanceY", -1, 1, 0, 2, 2.771266),
])
pad18 = doc.addObject("PartDesign::Pad", "Pad017")
body18.addObject(pad18)
pad18.Profile = sketch18
pad18.Length = 4
pad18.Midplane = True
body19 = doc.addObject("PartDesign::Body", "Body018")

sketch19 = doc.addObject("Sketcher::SketchObject", "Sketch018")
body19.addObject(sketch19)
sketch19.AttachmentSupport = (doc.getObject("XY_Plane018"), [""])
sketch19.MapMode = "FlatFace"
sketch19.addGeometry([
    Part.LineSegment(Vector(41.267798, 2.771266, 0), Vector(42.763429, 2.771266, 0)),
    Part.ArcOfCircle(Part.Circle(Vector(38.70721, 2.771294, 0), Vector(0, 0, 1), 4.056218), math.radians(-0.000396), math.radians(25.690278)),
    Part.LineSegment(Vector(42.362474, 4.52969, 0), Vector(41.668753, 4.52969, 0)),
    Part.ArcOfCircle(Part.Circle(Vector(45.324016, 2.771294, 0), Vector(0, 0, 1), 4.056218), math.radians(154.309722), math.radians(180.000396)),
], False)
sketch19.addConstraint([
    Sketcher.Constraint("Coincident", 0, 2, 1, 1),
    Sketcher.Constraint("Coincident", 1, 2, 2, 1),
    Sketcher.Constraint("Coincident", 2, 2, 3, 1),
    Sketcher.Constraint("Coincident", 3, 2, 0, 1),
    Sketcher.Constraint("Horizontal", 0),
    Sketcher.Constraint("Horizontal", 2),
    Sketcher.Constraint("Equal", 1, 3),
    Sketcher.Constraint("Horizontal", 1, 3, 3, 3),
    Sketcher.Constraint("Radius", 1, 4.056218),
    Sketcher.Constraint("DistanceX", 0, 1, 0, 2, 1.495631),
    Sketcher.Constraint("DistanceX", 2, 2, 2, 1, 0.693721),
    Sketcher.Constraint("DistanceX", -1, 1, 1, 3, 38.70721),
    Sketcher.Constraint("DistanceY", -1, 1, 1, 2, 4.52969),
    Sketcher.Constraint("DistanceY", -1, 1, 0, 2, 2.771266),
])
pad19 = doc.addObject("PartDesign::Pad", "Pad018")
body19.addObject(pad19)
pad19.Profile = sketch19
pad19.Length = 4
pad19.Midplane = True
body20 = doc.addObject("PartDesign::Body", "Body019")

sketch20 = doc.addObject("Sketcher::SketchObject", "Sketch019")
body20.addObject(sketch20)
sketch20.AttachmentSupport = (doc.getObject("XY_Plane019"), [""])
sketch20.MapMode = "FlatFace"
sketch20.addGeometry([
    Part.LineSegment(Vector(43.677798, 2.771266, 0), Vector(45.173429, 2.771266, 0)),
    Part.ArcOfCircle(Part.Circle(Vector(41.11721, 2.771294, 0), Vector(0, 0, 1), 4.056218), math.radians(-0.000396), math.radians(25.690278)),
    Part.LineSegment(Vector(44.772474, 4.52969, 0), Vector(44.078753, 4.52969, 0)),
    Part.ArcOfCircle(Part.Circle(Vector(47.734016, 2.771294, 0), Vector(0, 0, 1), 4.056218), math.radians(154.309722), math.radians(180.000396)),
], False)
sketch20.addConstraint([
    Sketcher.Constraint("Coincident", 0, 2, 1, 1),
    Sketcher.Constraint("Coincident", 1, 2, 2, 1),
    Sketcher.Constraint("Coincident", 2, 2, 3, 1),
    Sketcher.Constraint("Coincident", 3, 2, 0, 1),
    Sketcher.Constraint("Horizontal", 0),
    Sketcher.Constraint("Horizontal", 2),
    Sketcher.Constraint("Equal", 1, 3),
    Sketcher.Constraint("Horizontal", 1, 3, 3, 3),
    Sketcher.Constraint("Radius", 1, 4.056218),
    Sketcher.Constraint("DistanceX", 0, 1, 0, 2, 1.495631),
    Sketcher.Constraint("DistanceX", 2, 2, 2, 1, 0.693721),
    Sketcher.Constraint("DistanceX", -1, 1, 1, 3, 41.11721),
    Sketcher.Constraint("DistanceY", -1, 1, 1, 2, 4.52969),
    Sketcher.Constraint("DistanceY", -1, 1, 0, 2, 2.771266),
])
pad20 = doc.addObject("PartDesign::Pad", "Pad019")
body20.addObject(pad20)
pad20.Profile = sketch20
pad20.Length = 4
pad20.Midplane = True
body21 = doc.addObject("PartDesign::Body", "Body020")

sketch21 = doc.addObject("Sketcher::SketchObject", "Sketch020")
body21.addObject(sketch21)
sketch21.AttachmentSupport = (doc.getObject("XY_Plane020"), [""])
sketch21.MapMode = "FlatFace"
sketch21.addGeometry([
    Part.ArcOfCircle(Part.Circle(Vector(43.52721, 2.771294, 0), Vector(0, 0, 1), 4.056218), math.radians(-0.000396), math.radians(25.690278)),
    Part.LineSegment(Vector(47.182474, 4.52969, 0), Vector(46.488753, 4.52969, 0)),
    Part.ArcOfCircle(Part.Circle(Vector(50.144016, 2.771294, 0), Vector(0, 0, 1), 4.056218), math.radians(154.309722), math.radians(180.000396)),
    Part.LineSegment(Vector(46.087798, 2.771266, 0), Vector(47.583429, 2.771266, 0)),
], False)
sketch21.addConstraint([
    Sketcher.Constraint("Coincident", 0, 2, 1, 1),
    Sketcher.Constraint("Coincident", 1, 2, 2, 1),
    Sketcher.Constraint("Coincident", 2, 2, 3, 1),
    Sketcher.Constraint("Coincident", 3, 2, 0, 1),
    Sketcher.Constraint("Horizontal", 1),
    Sketcher.Constraint("Horizontal", 3),
    Sketcher.Constraint("Equal", 0, 2),
    Sketcher.Constraint("Horizontal", 0, 3, 2, 3),
    Sketcher.Constraint("Radius", 0, 4.056218),
    Sketcher.Constraint("DistanceX", 1, 2, 1, 1, 0.693721),
    Sketcher.Constraint("DistanceX", 3, 1, 3, 2, 1.495631),
    Sketcher.Constraint("DistanceX", -1, 1, 0, 3, 43.52721),
    Sketcher.Constraint("DistanceY", -1, 1, 0, 2, 4.52969),
    Sketcher.Constraint("DistanceY", -1, 1, 2, 2, 2.771266),
])
pad21 = doc.addObject("PartDesign::Pad", "Pad020")
body21.addObject(pad21)
pad21.Profile = sketch21
pad21.Length = 4
pad21.Midplane = True
body.AllowCompound = True
doc.recompute()

boolean = doc.addObject("PartDesign::Boolean", "Boolean")
body.addObject(boolean)
boolean.Type = "Fuse"
boolean.addObjects([body2])
doc.recompute()

boolean2 = doc.addObject("PartDesign::Boolean", "Boolean001")
body.addObject(boolean2)
boolean2.Type = "Fuse"
boolean2.addObjects([body3])
doc.recompute()

boolean3 = doc.addObject("PartDesign::Boolean", "Boolean002")
body.addObject(boolean3)
boolean3.Type = "Fuse"
boolean3.addObjects([body4])
doc.recompute()

boolean4 = doc.addObject("PartDesign::Boolean", "Boolean003")
body.addObject(boolean4)
boolean4.Type = "Fuse"
boolean4.addObjects([body5])
doc.recompute()

boolean5 = doc.addObject("PartDesign::Boolean", "Boolean004")
body.addObject(boolean5)
boolean5.Type = "Fuse"
boolean5.addObjects([body6])
doc.recompute()

boolean6 = doc.addObject("PartDesign::Boolean", "Boolean005")
body.addObject(boolean6)
boolean6.Type = "Fuse"
boolean6.addObjects([body7])
doc.recompute()

boolean7 = doc.addObject("PartDesign::Boolean", "Boolean006")
body.addObject(boolean7)
boolean7.Type = "Fuse"
boolean7.addObjects([body8])
doc.recompute()

boolean8 = doc.addObject("PartDesign::Boolean", "Boolean007")
body.addObject(boolean8)
boolean8.Type = "Fuse"
boolean8.addObjects([body9])
doc.recompute()

boolean9 = doc.addObject("PartDesign::Boolean", "Boolean008")
body.addObject(boolean9)
boolean9.Type = "Fuse"
boolean9.addObjects([body10])
doc.recompute()

boolean10 = doc.addObject("PartDesign::Boolean", "Boolean009")
body.addObject(boolean10)
boolean10.Type = "Fuse"
boolean10.addObjects([body11])
doc.recompute()

boolean11 = doc.addObject("PartDesign::Boolean", "Boolean010")
body.addObject(boolean11)
boolean11.Type = "Fuse"
boolean11.addObjects([body12])
doc.recompute()

boolean12 = doc.addObject("PartDesign::Boolean", "Boolean011")
body.addObject(boolean12)
boolean12.Type = "Fuse"
boolean12.addObjects([body13])
doc.recompute()

boolean13 = doc.addObject("PartDesign::Boolean", "Boolean012")
body.addObject(boolean13)
boolean13.Type = "Fuse"
boolean13.addObjects([body14])
doc.recompute()

boolean14 = doc.addObject("PartDesign::Boolean", "Boolean013")
body.addObject(boolean14)
boolean14.Type = "Fuse"
boolean14.addObjects([body15])
doc.recompute()

boolean15 = doc.addObject("PartDesign::Boolean", "Boolean014")
body.addObject(boolean15)
boolean15.Type = "Fuse"
boolean15.addObjects([body16])
doc.recompute()

boolean16 = doc.addObject("PartDesign::Boolean", "Boolean015")
body.addObject(boolean16)
boolean16.Type = "Fuse"
boolean16.addObjects([body17])
doc.recompute()

boolean17 = doc.addObject("PartDesign::Boolean", "Boolean016")
body.addObject(boolean17)
boolean17.Type = "Fuse"
boolean17.addObjects([body18])
doc.recompute()

boolean18 = doc.addObject("PartDesign::Boolean", "Boolean017")
body.addObject(boolean18)
boolean18.Type = "Fuse"
boolean18.addObjects([body19])
doc.recompute()

boolean19 = doc.addObject("PartDesign::Boolean", "Boolean018")
body.addObject(boolean19)
boolean19.Type = "Fuse"
boolean19.addObjects([body20])
doc.recompute()

boolean20 = doc.addObject("PartDesign::Boolean", "Boolean019")
body.addObject(boolean20)
boolean20.Type = "Fuse"
boolean20.addObjects([body21])

sketch22 = doc.addObject("Sketcher::SketchObject", "Sketch021")
body.addObject(sketch22)
sketch22.AttachmentSupport = (doc.XY_Plane, [""])
sketch22.MapMode = "FlatFace"
add_polygon(sketch22, [(-2.112202, 2.771266), (-2.112202, -1.428734), (47.887798, -1.428734), (47.887798, 2.571294), (47.583429, 2.771266)])
sketch22.addConstraint([
    Sketcher.Constraint("Vertical", 0),
    Sketcher.Constraint("Horizontal", 1),
    Sketcher.Constraint("Vertical", 2),
    Sketcher.Constraint("Horizontal", 4),
    Sketcher.Constraint("DistanceX", 1, 1, 1, 2, 50.0),
    Sketcher.Constraint("DistanceY", 0, 2, 0, 1, 4.2),
    Sketcher.Constraint("DistanceX", 4, 2, 4, 1, 49.695631),
    Sketcher.Constraint("DistanceY", 2, 1, 2, 2, 4.000028),
    Sketcher.Constraint("DistanceX", -1, 1, 3, 2, 47.583429),
    Sketcher.Constraint("DistanceY", 0, 2, -1, 1, 1.428734),
])
pad22 = doc.addObject("PartDesign::Pad", "Pad021")
body.addObject(pad22)
pad22.Profile = sketch22
pad22.Type = "TwoLengths"
pad22.Length = 5.5
pad22.Length2 = 2

doc.recompute()
